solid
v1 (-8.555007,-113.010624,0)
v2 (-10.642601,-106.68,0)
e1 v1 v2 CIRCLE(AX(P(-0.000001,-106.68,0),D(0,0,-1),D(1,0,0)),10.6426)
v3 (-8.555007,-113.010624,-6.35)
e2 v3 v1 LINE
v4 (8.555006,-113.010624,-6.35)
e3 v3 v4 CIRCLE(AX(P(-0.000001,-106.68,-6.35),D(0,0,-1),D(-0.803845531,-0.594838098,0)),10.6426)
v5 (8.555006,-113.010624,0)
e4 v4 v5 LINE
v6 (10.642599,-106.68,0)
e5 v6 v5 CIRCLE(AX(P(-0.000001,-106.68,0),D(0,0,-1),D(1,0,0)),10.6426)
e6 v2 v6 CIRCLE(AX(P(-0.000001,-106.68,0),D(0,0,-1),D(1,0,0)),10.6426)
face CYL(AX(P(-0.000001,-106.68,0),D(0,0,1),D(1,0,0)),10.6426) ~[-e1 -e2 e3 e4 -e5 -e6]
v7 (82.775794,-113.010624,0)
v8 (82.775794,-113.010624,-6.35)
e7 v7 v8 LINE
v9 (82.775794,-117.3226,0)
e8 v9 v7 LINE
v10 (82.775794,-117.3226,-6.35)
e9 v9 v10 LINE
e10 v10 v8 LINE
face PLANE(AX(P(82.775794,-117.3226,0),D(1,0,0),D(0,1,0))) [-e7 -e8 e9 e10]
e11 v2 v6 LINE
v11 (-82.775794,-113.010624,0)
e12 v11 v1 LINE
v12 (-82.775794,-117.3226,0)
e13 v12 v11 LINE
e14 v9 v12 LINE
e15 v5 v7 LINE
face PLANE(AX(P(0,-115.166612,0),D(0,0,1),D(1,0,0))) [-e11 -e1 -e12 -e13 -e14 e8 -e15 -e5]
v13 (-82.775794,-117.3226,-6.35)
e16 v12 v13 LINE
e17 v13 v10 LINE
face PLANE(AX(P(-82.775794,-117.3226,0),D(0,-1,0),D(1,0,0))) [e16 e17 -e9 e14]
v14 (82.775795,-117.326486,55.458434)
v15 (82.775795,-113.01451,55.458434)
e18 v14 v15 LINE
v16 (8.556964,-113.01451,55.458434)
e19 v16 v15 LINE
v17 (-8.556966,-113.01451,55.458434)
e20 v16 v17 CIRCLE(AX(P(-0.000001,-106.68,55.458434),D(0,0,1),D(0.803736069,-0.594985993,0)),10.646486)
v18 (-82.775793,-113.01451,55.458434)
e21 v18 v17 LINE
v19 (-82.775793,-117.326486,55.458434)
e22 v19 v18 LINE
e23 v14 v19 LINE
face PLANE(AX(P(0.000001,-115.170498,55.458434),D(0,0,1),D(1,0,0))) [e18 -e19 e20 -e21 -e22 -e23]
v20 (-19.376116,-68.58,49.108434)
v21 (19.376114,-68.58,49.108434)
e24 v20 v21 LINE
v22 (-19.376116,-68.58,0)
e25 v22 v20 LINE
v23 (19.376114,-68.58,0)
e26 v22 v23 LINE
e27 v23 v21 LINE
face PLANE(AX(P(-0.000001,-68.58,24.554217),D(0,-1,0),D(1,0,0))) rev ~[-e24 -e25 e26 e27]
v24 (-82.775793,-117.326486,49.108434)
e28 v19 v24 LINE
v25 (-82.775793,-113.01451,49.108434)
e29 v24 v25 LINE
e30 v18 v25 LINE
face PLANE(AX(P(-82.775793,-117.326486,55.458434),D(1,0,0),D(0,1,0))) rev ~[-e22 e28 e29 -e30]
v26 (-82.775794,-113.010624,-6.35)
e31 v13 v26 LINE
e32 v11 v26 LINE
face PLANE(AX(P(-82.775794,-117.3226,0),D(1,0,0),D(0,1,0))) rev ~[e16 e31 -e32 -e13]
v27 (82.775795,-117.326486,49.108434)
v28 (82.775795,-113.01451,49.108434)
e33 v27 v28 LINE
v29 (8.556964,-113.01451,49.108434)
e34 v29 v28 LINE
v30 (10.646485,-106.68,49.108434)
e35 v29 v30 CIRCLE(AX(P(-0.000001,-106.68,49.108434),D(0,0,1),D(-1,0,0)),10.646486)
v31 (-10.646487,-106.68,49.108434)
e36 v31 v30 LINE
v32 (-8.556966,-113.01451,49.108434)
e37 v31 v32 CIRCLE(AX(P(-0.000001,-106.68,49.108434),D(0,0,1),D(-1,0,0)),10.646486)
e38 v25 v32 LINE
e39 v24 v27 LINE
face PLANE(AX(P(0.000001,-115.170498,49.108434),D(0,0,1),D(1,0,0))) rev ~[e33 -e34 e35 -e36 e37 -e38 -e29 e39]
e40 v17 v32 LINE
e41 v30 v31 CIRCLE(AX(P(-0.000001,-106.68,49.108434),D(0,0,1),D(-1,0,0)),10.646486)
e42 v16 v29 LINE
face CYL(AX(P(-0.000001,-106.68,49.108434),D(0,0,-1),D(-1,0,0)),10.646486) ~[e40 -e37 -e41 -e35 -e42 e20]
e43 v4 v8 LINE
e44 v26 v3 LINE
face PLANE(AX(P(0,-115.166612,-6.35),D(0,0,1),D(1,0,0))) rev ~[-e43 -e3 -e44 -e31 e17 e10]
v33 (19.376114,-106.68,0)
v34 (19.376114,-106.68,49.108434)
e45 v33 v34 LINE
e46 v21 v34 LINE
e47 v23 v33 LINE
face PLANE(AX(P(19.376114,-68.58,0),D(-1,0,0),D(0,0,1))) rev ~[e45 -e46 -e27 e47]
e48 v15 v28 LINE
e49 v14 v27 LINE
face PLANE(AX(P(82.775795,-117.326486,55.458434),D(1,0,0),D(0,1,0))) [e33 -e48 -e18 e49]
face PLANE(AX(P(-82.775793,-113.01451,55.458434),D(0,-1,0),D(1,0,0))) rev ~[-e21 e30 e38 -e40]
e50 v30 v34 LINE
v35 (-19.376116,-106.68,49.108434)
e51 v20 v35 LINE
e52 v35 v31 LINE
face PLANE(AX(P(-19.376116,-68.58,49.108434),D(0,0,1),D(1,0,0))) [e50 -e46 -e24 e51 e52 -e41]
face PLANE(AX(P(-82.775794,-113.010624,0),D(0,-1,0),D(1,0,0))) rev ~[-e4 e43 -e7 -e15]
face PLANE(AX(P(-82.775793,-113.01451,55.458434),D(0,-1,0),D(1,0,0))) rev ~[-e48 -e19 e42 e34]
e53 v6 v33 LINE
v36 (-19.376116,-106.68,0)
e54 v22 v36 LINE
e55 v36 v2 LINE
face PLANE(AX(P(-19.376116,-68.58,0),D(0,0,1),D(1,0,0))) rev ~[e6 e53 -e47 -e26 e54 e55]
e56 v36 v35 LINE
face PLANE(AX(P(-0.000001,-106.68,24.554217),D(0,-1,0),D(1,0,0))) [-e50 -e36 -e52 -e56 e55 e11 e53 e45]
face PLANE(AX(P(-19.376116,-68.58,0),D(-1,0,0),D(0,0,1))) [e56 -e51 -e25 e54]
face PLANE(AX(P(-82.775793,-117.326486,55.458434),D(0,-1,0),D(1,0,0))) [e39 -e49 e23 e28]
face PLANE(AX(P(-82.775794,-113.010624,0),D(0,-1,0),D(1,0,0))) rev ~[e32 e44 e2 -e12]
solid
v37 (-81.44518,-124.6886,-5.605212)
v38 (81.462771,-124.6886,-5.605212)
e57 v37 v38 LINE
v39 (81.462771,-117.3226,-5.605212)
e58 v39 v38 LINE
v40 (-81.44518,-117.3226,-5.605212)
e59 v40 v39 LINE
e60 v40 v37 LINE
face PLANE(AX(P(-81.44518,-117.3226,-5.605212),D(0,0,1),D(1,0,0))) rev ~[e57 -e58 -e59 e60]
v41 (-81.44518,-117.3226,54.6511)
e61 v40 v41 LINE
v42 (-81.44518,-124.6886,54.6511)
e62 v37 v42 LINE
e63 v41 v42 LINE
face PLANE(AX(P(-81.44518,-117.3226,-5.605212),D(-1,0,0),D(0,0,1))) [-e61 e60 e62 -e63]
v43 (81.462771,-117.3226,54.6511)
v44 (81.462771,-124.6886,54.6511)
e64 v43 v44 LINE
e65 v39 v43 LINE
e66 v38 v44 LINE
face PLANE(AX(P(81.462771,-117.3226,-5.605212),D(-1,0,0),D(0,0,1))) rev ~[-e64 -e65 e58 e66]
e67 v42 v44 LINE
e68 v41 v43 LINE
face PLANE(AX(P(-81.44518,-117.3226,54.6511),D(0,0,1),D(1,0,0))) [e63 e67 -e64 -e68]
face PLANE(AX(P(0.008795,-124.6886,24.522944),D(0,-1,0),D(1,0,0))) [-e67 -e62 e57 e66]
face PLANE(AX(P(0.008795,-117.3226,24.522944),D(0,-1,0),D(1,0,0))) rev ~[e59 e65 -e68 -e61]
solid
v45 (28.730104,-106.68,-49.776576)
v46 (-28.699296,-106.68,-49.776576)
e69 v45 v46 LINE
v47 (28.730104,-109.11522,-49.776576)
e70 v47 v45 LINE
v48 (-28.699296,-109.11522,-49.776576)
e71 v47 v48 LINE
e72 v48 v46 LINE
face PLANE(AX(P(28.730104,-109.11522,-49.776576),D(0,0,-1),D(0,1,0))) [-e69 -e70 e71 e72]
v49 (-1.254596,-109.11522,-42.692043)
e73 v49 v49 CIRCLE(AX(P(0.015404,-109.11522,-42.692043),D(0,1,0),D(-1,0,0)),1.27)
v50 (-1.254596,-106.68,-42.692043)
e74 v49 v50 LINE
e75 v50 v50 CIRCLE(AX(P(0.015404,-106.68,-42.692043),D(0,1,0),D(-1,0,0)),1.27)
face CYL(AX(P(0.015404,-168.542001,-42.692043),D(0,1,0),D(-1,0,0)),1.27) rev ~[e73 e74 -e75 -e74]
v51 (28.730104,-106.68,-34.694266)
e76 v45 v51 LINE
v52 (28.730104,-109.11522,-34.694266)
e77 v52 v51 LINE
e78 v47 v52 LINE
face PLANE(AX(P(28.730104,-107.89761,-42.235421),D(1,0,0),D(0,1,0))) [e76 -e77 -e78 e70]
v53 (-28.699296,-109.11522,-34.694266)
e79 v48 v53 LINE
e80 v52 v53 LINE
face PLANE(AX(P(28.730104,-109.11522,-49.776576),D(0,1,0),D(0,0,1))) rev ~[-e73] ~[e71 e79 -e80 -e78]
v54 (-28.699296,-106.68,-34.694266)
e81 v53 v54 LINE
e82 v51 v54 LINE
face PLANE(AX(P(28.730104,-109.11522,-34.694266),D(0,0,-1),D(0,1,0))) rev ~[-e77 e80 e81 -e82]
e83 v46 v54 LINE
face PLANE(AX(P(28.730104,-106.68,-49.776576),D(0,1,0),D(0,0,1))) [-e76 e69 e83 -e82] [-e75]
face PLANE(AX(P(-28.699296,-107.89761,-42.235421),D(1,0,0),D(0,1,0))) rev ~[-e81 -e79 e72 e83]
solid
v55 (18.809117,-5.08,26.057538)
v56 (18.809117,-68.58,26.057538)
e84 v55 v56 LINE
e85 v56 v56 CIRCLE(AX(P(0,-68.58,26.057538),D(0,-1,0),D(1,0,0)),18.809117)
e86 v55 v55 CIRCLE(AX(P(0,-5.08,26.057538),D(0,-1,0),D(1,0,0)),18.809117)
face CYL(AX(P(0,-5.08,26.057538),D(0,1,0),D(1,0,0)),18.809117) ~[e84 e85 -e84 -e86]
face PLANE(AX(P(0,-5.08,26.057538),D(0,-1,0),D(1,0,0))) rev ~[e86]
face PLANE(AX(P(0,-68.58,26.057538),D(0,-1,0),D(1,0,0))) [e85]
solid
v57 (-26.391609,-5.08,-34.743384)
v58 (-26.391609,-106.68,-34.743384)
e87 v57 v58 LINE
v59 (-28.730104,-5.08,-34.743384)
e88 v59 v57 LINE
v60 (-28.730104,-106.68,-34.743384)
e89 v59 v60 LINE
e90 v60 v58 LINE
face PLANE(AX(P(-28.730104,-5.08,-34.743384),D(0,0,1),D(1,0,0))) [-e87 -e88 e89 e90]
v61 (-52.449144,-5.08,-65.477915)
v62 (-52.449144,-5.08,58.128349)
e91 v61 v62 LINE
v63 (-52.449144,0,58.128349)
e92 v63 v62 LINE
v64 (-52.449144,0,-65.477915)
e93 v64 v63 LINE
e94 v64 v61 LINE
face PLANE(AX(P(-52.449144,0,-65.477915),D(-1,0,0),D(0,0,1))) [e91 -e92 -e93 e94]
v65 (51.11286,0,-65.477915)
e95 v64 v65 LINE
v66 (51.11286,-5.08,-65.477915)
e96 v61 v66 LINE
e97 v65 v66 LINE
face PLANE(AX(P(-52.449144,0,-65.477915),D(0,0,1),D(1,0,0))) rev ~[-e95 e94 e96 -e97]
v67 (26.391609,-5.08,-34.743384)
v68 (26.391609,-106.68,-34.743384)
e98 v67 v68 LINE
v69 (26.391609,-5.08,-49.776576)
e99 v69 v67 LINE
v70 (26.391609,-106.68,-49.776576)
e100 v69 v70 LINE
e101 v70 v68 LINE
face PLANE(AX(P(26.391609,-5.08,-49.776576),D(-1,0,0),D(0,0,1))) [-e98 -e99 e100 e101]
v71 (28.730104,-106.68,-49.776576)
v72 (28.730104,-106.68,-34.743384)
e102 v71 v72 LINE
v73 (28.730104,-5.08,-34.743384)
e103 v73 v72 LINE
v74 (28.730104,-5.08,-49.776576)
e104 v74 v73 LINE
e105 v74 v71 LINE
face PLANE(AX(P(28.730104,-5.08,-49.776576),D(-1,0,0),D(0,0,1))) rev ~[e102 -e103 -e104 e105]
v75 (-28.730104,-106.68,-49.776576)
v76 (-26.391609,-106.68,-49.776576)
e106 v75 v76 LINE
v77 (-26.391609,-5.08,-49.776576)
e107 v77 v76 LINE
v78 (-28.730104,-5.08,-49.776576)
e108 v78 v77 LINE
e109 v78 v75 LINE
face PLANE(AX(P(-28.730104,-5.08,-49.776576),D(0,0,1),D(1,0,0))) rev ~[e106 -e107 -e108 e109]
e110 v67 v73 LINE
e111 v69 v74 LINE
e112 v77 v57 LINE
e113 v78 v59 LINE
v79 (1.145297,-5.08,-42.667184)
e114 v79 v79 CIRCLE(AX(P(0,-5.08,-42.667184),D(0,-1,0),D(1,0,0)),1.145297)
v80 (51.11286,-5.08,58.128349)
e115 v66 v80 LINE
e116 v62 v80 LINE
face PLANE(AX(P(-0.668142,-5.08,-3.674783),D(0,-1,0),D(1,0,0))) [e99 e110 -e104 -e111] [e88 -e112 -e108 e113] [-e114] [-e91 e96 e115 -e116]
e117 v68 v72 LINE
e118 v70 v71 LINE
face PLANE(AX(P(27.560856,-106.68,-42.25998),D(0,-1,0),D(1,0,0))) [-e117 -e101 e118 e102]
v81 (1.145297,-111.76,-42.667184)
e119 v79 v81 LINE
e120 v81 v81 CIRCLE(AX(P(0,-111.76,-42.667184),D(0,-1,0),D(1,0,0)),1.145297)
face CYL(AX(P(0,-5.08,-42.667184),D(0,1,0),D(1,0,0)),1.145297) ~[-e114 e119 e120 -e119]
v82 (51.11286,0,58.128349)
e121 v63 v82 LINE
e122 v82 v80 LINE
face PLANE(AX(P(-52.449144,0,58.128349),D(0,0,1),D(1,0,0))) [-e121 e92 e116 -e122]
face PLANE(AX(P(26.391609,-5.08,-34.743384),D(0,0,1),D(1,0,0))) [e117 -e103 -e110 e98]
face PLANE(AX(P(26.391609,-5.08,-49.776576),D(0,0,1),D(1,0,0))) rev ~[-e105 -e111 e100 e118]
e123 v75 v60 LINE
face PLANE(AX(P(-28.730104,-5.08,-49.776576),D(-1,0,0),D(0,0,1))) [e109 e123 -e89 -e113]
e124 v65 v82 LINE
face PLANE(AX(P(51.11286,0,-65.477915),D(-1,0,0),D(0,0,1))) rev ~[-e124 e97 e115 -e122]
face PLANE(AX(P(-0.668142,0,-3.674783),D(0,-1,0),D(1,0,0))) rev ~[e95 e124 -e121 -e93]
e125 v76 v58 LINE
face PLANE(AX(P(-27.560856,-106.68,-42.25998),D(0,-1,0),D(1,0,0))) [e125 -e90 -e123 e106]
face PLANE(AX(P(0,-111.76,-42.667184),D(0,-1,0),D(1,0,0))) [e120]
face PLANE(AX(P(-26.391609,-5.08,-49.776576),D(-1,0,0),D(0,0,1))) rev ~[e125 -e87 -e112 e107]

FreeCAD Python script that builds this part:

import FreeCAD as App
import Part
import Sketcher
Q = App.Units.Quantity


def add_polygon(sketch, points):
    """Adds a closed chain of lines whose ends are joined by coincident constraints."""
    first, n = sketch.GeometryCount, len(points)
    for a, b in zip(points, points[1:] + points[:1]):
        sketch.addGeometry(Part.LineSegment(App.Vector(*a, 0), App.Vector(*b, 0)), False)
    for i in range(n):
        sketch.addConstraint(Sketcher.Constraint("Coincident", first + i, 2, first + (i + 1) % n, 1))

doc = App.newDocument("Part")
params = doc.addObject("Spreadsheet::Sheet", "Params")
for row, (alias, value) in enumerate([
    ("pad1_length", "0.2 in"),
    ("pad2_length", "4 in"),
    ("pad3_length", "4.2 in"),
    ("pad4_length", "2.5 in"),
    ("pad5_length", "1.5 in"),
    ("pad6_length", "0.25 in"),
    ("sketch7_diameter", "0.838 in"),
    ("pad7_length", "0.25 in"),
    ("pad8_length", "0.25 in"),
    ("pad9_length", "0.25 in"),
    ("pad10_length", "2.261 in"),
    ("sketch11_diameter", "0.1 in"),
    ("hole_diameter", "0.1 in"),
    ("pad11_length", "0.29 in"),
], start=1):
    params.set(f"A{row}", alias)
    params.set(f"B{row}", "=" + value)
    params.setAlias(f"B{row}", alias)

body = doc.addObject("PartDesign::Body", "Body")

# Sketch on XZ plane
sketch1 = body.newObject("Sketcher::SketchObject", "Sketch")
sketch1.AttachmentSupport = (doc.getObject("XZ_Plane"), [""])
sketch1.MapMode = "FlatFace"
add_polygon(sketch1, [(-52, 58), (-52, -65), (51, -65), (51, 58)])  # lines 0-3
sketch1.addConstraint([
    Sketcher.Constraint("Vertical", 0),
    Sketcher.Constraint("Horizontal", 1),
    Sketcher.Constraint("Vertical", 2),
    Sketcher.Constraint("Horizontal", 3),
    Sketcher.Constraint("DistanceX", 1, 1, 1, 2, 103.562005),
    Sketcher.Constraint("DistanceY", 0, 2, 0, 1, 123.606265),
    Sketcher.Constraint("DistanceX", -1, 1, 1, 2, 51.11286),
    Sketcher.Constraint("DistanceY", -1, 1, 2, 2, 58.128349),
])
pad1 = body.newObject("PartDesign::Pad", "Pad")
pad1.Profile = sketch1
pad1.setExpression("Length", "Params.pad1_length")

# Sketch on XZ plane
sketch2 = body.newObject("Sketcher::SketchObject", "Sketch001")
sketch2.AttachmentSupport = (doc.getObject("XZ_Plane"), [""])
sketch2.MapMode = "FlatFace"
sketch2.AttachmentOffset = App.Placement(App.Vector(0, 0, 0.2 * 25.4), App.Rotation())
add_polygon(sketch2, [(-28.7, -34.7), (-28.7, -49.8), (-26.4, -49.8), (-26.4, -34.7)])  # lines 0-3
add_polygon(sketch2, [(26.4, -34.7), (26.4, -49.8), (28.7, -49.8), (28.7, -34.7)])  # lines 4-7
sketch2.addConstraint([
    Sketcher.Constraint("Vertical", 0),
    Sketcher.Constraint("Horizontal", 1),
    Sketcher.Constraint("Vertical", 2),
    Sketcher.Constraint("Horizontal", 3),
    Sketcher.Constraint("Vertical", 4),
    Sketcher.Constraint("Horizontal", 5),
    Sketcher.Constraint("Vertical", 6),
    Sketcher.Constraint("Horizontal", 7),
    Sketcher.Constraint("Symmetric", 1, 2, 4, 2, -2),
    Sketcher.Constraint("Symmetric", 3, 2, 6, 2, -2),
    Sketcher.Constraint("DistanceX", 1, 1, 1, 2, 2.338495),
    Sketcher.Constraint("DistanceY", 0, 2, 0, 1, 15.033193),
    Sketcher.Constraint("DistanceX", 1, 2, -1, 1, 26.391609),
    Sketcher.Constraint("DistanceY", 0, 2, -1, 1, 49.776576),
])
pad2 = body.newObject("PartDesign::Pad", "Pad001")
pad2.Profile = sketch2
pad2.setExpression("Length", "Params.pad2_length")

# Sketch on XZ plane
sketch3 = body.newObject("Sketcher::SketchObject", "Sketch002")
sketch3.AttachmentSupport = (doc.getObject("XZ_Plane"), [""])
sketch3.MapMode = "FlatFace"
sketch3.AttachmentOffset = App.Placement(App.Vector(0, 0, 0.2 * 25.4), App.Rotation())
sketch3.addGeometry(Part.Circle(App.Vector(0, -42.7, 0), App.Vector(0, 0, 1), 1.1), False)
sketch3.addConstraint([
    Sketcher.Constraint("PointOnObject", 0, 3, -2),
    Sketcher.Constraint("Diameter", 0, 2.290594),
    Sketcher.Constraint("DistanceY", 0, 3, -1, 1, 42.667184),
])
pad3 = body.newObject("PartDesign::Pad", "Pad002")
pad3.Profile = sketch3
pad3.setExpression("Length", "Params.pad3_length")
body2 = doc.addObject("PartDesign::Body", "Body001")

# Sketch on XZ plane
sketch4 = body2.newObject("Sketcher::SketchObject", "Sketch003")
sketch4.AttachmentSupport = (doc.getObject("XZ_Plane001"), [""])
sketch4.MapMode = "FlatFace"
sketch4.AttachmentOffset = App.Placement(App.Vector(0, 0, 0.2 * 25.4), App.Rotation())
sketch4.addGeometry(Part.Circle(App.Vector(0, 26, 0), App.Vector(0, 0, 1), 19), False)
sketch4.addConstraint([
    Sketcher.Constraint("PointOnObject", 0, 3, -2),
    Sketcher.Constraint("Diameter", 0, 37.618235),
    Sketcher.Constraint("DistanceY", -1, 1, 0, 3, 26.057538),
])
pad4 = body2.newObject("PartDesign::Pad", "Pad003")
pad4.Profile = sketch4
pad4.setExpression("Length", "Params.pad4_length")
body3 = doc.addObject("PartDesign::Body", "Body002")

# Sketch on XZ plane
sketch5 = body3.newObject("Sketcher::SketchObject", "Sketch004")
sketch5.AttachmentSupport = (doc.getObject("XZ_Plane002"), [""])
sketch5.MapMode = "FlatFace"
sketch5.AttachmentOffset = App.Placement(App.Vector(0, 0, 2.7 * 25.4), App.Rotation())
add_polygon(sketch5, [(-19, 49), (-19, 0), (19, 0), (19, 49)])  # lines 0-3
sketch5.addConstraint([
    Sketcher.Constraint("Vertical", 0),
    Sketcher.Constraint("Horizontal", 1),
    Sketcher.Constraint("Vertical", 2),
    Sketcher.Constraint("Horizontal", 3),
    Sketcher.Constraint("Symmetric", 0, 2, 1, 2, -1, 1),
    Sketcher.Constraint("DistanceX", 1, 1, 1, 2, 38.75223),
    Sketcher.Constraint("DistanceY", 0, 2, 0, 1, 49.108434),
])
pad5 = body3.newObject("PartDesign::Pad", "Pad004")
pad5.Profile = sketch5
pad5.setExpression("Length", "Params.pad5_length")

# Sketch on XY plane
sketch6 = body3.newObject("Sketcher::SketchObject", "Sketch005")
sketch6.AttachmentSupport = (doc.getObject("XY_Plane002"), [""])
sketch6.MapMode = "FlatFace"
sketch6.AttachmentOffset = App.Placement(App.Vector(0, 0, 49.108434), App.Rotation())
sketch6.addGeometry(Part.Circle(App.Vector(0, -107, 0), App.Vector(0, 0, 1), 11), False)
sketch6.addConstraint([
    Sketcher.Constraint("PointOnObject", 0, 3, -2),
    Sketcher.Constraint("DistanceY", 0, 3, -1, 1, Q("4.2 in")),
    Sketcher.Constraint("Diameter", 0, 21.292973),
])
pad6 = body3.newObject("PartDesign::Pad", "Pad005")
pad6.Profile = sketch6
pad6.setExpression("Length", "Params.pad6_length")

# Sketch on XY plane
sketch7 = body3.newObject("Sketcher::SketchObject", "Sketch006")
sketch7.AttachmentSupport = (doc.getObject("XY_Plane002"), [""])
sketch7.MapMode = "FlatFace"
sketch7.addGeometry(Part.Circle(App.Vector(0, -107, 0), App.Vector(0, 0, 1), 11), False)
sketch7.addConstraint([
    Sketcher.Constraint("PointOnObject", 0, 3, -2),
    Sketcher.Constraint("Diameter", 0, Q("0.838 in")),
    Sketcher.Constraint("DistanceY", 0, 3, -1, 1, Q("4.2 in")),
])
sketch7.setExpression("Constraints[1]", "Params.sketch7_diameter")
pad7 = body3.newObject("PartDesign::Pad", "Pad006")
pad7.Profile = sketch7
pad7.setExpression("Length", "Params.pad7_length")
pad7.Reversed = True

# Sketch on XY plane
sketch8 = body3.newObject("Sketcher::SketchObject", "Sketch007")
sketch8.AttachmentSupport = (doc.getObject("XY_Plane002"), [""])
sketch8.MapMode = "FlatFace"
add_polygon(sketch8, [(-82.8, -113), (-82.8, -117.3), (82.8, -117.3), (82.8, -113)])  # lines 0-3
sketch8.addConstraint([
    Sketcher.Constraint("Vertical", 0),
    Sketcher.Constraint("Horizontal", 1),
    Sketcher.Constraint("Vertical", 2),
    Sketcher.Constraint("Horizontal", 3),
    Sketcher.Constraint("DistanceY", 0, 2, -1, 1, Q("4.619 in")),
    Sketcher.Constraint("DistanceX", 1, 1, 1, 2, 165.551588),
    Sketcher.Constraint("DistanceY", 0, 2, 0, 1, 4.311976),
    Sketcher.Constraint("DistanceX", 0, 2, -1, 1, 82.775794),
])
pad8 = body3.newObject("PartDesign::Pad", "Pad007")
pad8.Profile = sketch8
pad8.setExpression("Length", "Params.pad8_length")
pad8.Reversed = True

# Sketch on XY plane
sketch9 = body3.newObject("Sketcher::SketchObject", "Sketch008")
sketch9.AttachmentSupport = (doc.getObject("XY_Plane002"), [""])
sketch9.MapMode = "FlatFace"
sketch9.AttachmentOffset = App.Placement(App.Vector(0, 0, 55.458434), App.Rotation())
add_polygon(sketch9, [(-82.8, -113), (-82.8, -117.3), (82.8, -117.3), (82.8, -113)])  # lines 0-3
sketch9.addConstraint([
    Sketcher.Constraint("Vertical", 0),
    Sketcher.Constraint("Horizontal", 1),
    Sketcher.Constraint("Vertical", 2),
    Sketcher.Constraint("Horizontal", 3),
    Sketcher.Constraint("DistanceX", 1, 1, 1, 2, 165.551588),
    Sketcher.Constraint("DistanceY", 0, 2, 0, 1, 4.311976),
    Sketcher.Constraint("DistanceY", 2, 2, -1, 1, 113.01451),
    Sketcher.Constraint("DistanceX", 0, 2, -1, 1, 82.775793),
])
pad9 = body3.newObject("PartDesign::Pad", "Pad008")
pad9.Profile = sketch9
pad9.setExpression("Length", "Params.pad9_length")
pad9.Reversed = True
body4 = doc.addObject("PartDesign::Body", "Body003")

# Sketch on YZ plane
sketch10 = body4.newObject("Sketcher::SketchObject", "Sketch009")
sketch10.AttachmentSupport = (doc.getObject("YZ_Plane003"), [""])
sketch10.MapMode = "FlatFace"
sketch10.AttachmentOffset = App.Placement(App.Vector(0, 0, 28.730104), App.Rotation())
add_polygon(sketch10, [(-109.1, -34.7), (-109.1, -49.8), (-106.7, -49.8), (-106.7, -34.7)])  # lines 0-3
sketch10.addConstraint([
    Sketcher.Constraint("Vertical", 0),
    Sketcher.Constraint("Horizontal", 1),
    Sketcher.Constraint("Vertical", 2),
    Sketcher.Constraint("Horizontal", 3),
    Sketcher.Constraint("DistanceX", 1, 2, -1, 1, Q("4.2 in")),
    Sketcher.Constraint("DistanceX", 1, 1, 1, 2, 2.43522),
    Sketcher.Constraint("DistanceY", 0, 2, 0, 1, 15.082311),
    Sketcher.Constraint("DistanceY", 0, 2, -1, 1, 49.776576),
])
pad10 = body4.newObject("PartDesign::Pad", "Pad009")
pad10.Profile = sketch10
pad10.setExpression("Length", "Params.pad10_length")
pad10.Reversed = True

# Sketch on XZ plane
sketch11 = body4.newObject("Sketcher::SketchObject", "Sketch010")
sketch11.AttachmentSupport = (doc.getObject("XZ_Plane003"), [""])
sketch11.MapMode = "FlatFace"
sketch11.AttachmentOffset = App.Placement(App.Vector(0, 0, 109.11522), App.Rotation())
sketch11.addGeometry(Part.Circle(App.Vector(0, -42.7, 0), App.Vector(0, 0, 1), 1.3), False)
sketch11.addConstraint([
    Sketcher.Constraint("Diameter", 0, Q("0.1 in")),
    Sketcher.Constraint("DistanceX", -1, 1, 0, 3, 0.015404),
    Sketcher.Constraint("DistanceY", 0, 3, -1, 1, 42.692043),
])
sketch11.setExpression("Constraints[0]", "Params.sketch11_diameter")
doc.recompute()
hole = body4.newObject("PartDesign::Hole", "Hole")
hole.Profile = sketch11
hole.ThreadType = "None"
hole.setExpression("Diameter", "Params.hole_diameter")
hole.DepthType = "ThroughAll"
body5 = doc.addObject("PartDesign::Body", "Body004")

# Sketch on XZ plane
sketch12 = body5.newObject("Sketcher::SketchObject", "Sketch011")
sketch12.AttachmentSupport = (doc.getObject("XZ_Plane004"), [""])
sketch12.MapMode = "FlatFace"
sketch12.AttachmentOffset = App.Placement(App.Vector(0, 0, 4.619 * 25.4), App.Rotation())
add_polygon(sketch12, [(-81, 55), (-81, -6), (81, -6), (81, 55)])  # lines 0-3
sketch12.addConstraint([
    Sketcher.Constraint("Vertical", 0),
    Sketcher.Constraint("Horizontal", 1),
    Sketcher.Constraint("Vertical", 2),
    Sketcher.Constraint("Horizontal", 3),
    Sketcher.Constraint("DistanceX", 1, 1, 1, 2, 162.907951),
    Sketcher.Constraint("DistanceY", -1, 1, 2, 2, 54.6511),
    Sketcher.Constraint("DistanceY", 0, 2, 0, 1, 60.256313),
    Sketcher.Constraint("DistanceX", 0, 2, -1, 1, 81.44518),
])
pad11 = body5.newObject("PartDesign::Pad", "Pad010")
pad11.Profile = sketch12
pad11.setExpression("Length", "Params.pad11_length")

doc.recompute()
